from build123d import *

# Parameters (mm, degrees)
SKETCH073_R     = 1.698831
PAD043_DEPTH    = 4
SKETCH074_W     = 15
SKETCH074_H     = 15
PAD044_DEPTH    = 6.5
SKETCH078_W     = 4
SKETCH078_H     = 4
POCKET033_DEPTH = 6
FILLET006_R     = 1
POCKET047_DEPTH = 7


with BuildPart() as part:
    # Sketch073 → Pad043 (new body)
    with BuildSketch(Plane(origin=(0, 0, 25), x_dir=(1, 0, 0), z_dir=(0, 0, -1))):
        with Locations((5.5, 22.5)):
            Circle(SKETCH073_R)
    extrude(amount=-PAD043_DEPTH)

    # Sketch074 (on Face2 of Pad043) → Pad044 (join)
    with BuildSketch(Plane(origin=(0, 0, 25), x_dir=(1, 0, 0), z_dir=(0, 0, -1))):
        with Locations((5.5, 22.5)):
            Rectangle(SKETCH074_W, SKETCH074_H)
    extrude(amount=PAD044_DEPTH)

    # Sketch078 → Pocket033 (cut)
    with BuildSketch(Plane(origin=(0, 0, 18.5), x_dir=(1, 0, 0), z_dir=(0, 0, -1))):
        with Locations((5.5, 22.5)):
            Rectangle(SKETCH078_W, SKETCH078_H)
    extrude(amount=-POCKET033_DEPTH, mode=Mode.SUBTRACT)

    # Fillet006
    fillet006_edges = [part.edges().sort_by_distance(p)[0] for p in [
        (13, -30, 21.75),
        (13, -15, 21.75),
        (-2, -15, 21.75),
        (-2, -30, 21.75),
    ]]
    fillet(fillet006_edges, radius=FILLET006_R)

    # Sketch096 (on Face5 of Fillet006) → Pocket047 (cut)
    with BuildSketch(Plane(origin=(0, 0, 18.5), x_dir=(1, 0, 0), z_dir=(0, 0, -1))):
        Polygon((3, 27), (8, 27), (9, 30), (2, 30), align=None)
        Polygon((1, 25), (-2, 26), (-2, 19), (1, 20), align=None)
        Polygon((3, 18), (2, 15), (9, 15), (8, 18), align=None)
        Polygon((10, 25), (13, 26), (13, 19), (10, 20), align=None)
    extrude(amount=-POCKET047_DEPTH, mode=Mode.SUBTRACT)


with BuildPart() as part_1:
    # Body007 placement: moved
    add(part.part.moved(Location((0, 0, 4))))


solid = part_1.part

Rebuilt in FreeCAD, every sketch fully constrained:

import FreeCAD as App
import Part
import Sketcher


def edges_at(feature, points):
    """Names of the edges that pass closest to the given points."""
    edges = feature.Shape.Edges
    near = lambda p: min(range(len(edges)), key=lambda i: edges[i].distToShape(Part.Vertex(*p))[0])
    return sorted({f"Edge{near(p) + 1}" for p in points})


def add_polygon(sketch, points):
    """Adds a closed chain of lines whose ends are joined by coincident constraints."""
    first, n = sketch.GeometryCount, len(points)
    for a, b in zip(points, points[1:] + points[:1]):
        sketch.addGeometry(Part.LineSegment(App.Vector(*a, 0), App.Vector(*b, 0)), False)
    for i in range(n):
        sketch.addConstraint(Sketcher.Constraint("Coincident", first + i, 2, first + (i + 1) % n, 1))

doc = App.newDocument("Part")
body = doc.addObject("PartDesign::Body", "Body")

# Sketch on XY plane
sketch1 = body.newObject("Sketcher::SketchObject", "Sketch")
sketch1.AttachmentSupport = (doc.getObject("XY_Plane"), [""])
sketch1.MapMode = "FlatFace"
sketch1.AttachmentOffset = App.Placement(App.Vector(0, 0, 25), App.Rotation())
sketch1.addGeometry(Part.Circle(App.Vector(5.5, -22.5, 0), App.Vector(0, 0, 1), 1.7), False)
sketch1.addConstraint([
    Sketcher.Constraint("DistanceX", -1, 1, 0, 3, 5.5),
    Sketcher.Constraint("DistanceY", 0, 3, -1, 1, 22.5),
    Sketcher.Constraint("Diameter", 0, 3.397662),
])
pad1 = body.newObject("PartDesign::Pad", "Pad")
pad1.Profile = sketch1
pad1.Length = 4

# Sketch on XY plane
sketch2 = body.newObject("Sketcher::SketchObject", "Sketch001")
sketch2.AttachmentSupport = (doc.getObject("XY_Plane"), [""])
sketch2.MapMode = "FlatFace"
sketch2.AttachmentOffset = App.Placement(App.Vector(0, 0, 25), App.Rotation())
add_polygon(sketch2, [(-2, -30), (-2, -15), (13, -15), (13, -30)])  # lines 0-3
sketch2.addConstraint([
    Sketcher.Constraint("Vertical", 0),
    Sketcher.Constraint("Horizontal", 1),
    Sketcher.Constraint("Vertical", 2),
    Sketcher.Constraint("Horizontal", 3),
    Sketcher.Constraint("Equal", 3, 0),
    Sketcher.Constraint("DistanceX", 1, 1, 1, 2, 15.0),
    Sketcher.Constraint("DistanceX", 0, 2, -1, 1, 2.0),
    Sketcher.Constraint("DistanceY", 0, 2, -1, 1, 15.0),
])
pad2 = body.newObject("PartDesign::Pad", "Pad001")
pad2.Profile = sketch2
pad2.Length = 6.5
pad2.Reversed = True

# Sketch on XY plane
sketch3 = body.newObject("Sketcher::SketchObject", "Sketch002")
sketch3.AttachmentSupport = (doc.getObject("XY_Plane"), [""])
sketch3.MapMode = "FlatFace"
sketch3.AttachmentOffset = App.Placement(App.Vector(0, 0, 18.5), App.Rotation())
add_polygon(sketch3, [(3.5, -24.5), (3.5, -20.5), (7.5, -20.5), (7.5, -24.5)])  # lines 0-3
sketch3.addConstraint([
    Sketcher.Constraint("Vertical", 0),
    Sketcher.Constraint("Horizontal", 1),
    Sketcher.Constraint("Vertical", 2),
    Sketcher.Constraint("Horizontal", 3),
    Sketcher.Constraint("Equal", 3, 0),
    Sketcher.Constraint("DistanceX", 1, 1, 1, 2, 4.0),
    Sketcher.Constraint("DistanceX", -1, 1, 0, 2, 3.5),
    Sketcher.Constraint("DistanceY", 0, 2, -1, 1, 20.5),
])
pocket1 = body.newObject("PartDesign::Pocket", "Pocket")
pocket1.Profile = sketch3
pocket1.Length = 6
pocket1.Reversed = True
doc.recompute()

fillet = body.newObject("PartDesign::Fillet", "Fillet")
fillet.Base = (pocket1, edges_at(pocket1, [
    (13, -30, 21.75),
    (13, -15, 21.75),
    (-2, -15, 21.75),
    (-2, -30, 21.75),
]))
fillet.Radius = 1

# Sketch on XY plane
sketch4 = body.newObject("Sketcher::SketchObject", "Sketch003")
sketch4.AttachmentSupport = (doc.getObject("XY_Plane"), [""])
sketch4.MapMode = "FlatFace"
sketch4.AttachmentOffset = App.Placement(App.Vector(0, 0, 18.5), App.Rotation())
add_polygon(sketch4, [(3, -27), (8, -27), (9, -30), (2, -30)])  # lines 0-3
add_polygon(sketch4, [(1, -25), (-2, -26), (-2, -19), (1, -20)])  # lines 4-7
add_polygon(sketch4, [(3, -18), (2, -15), (9, -15), (8, -18)])  # lines 8-11
add_polygon(sketch4, [(13, -26), (10, -25), (10, -20), (13, -19)])  # lines 12-15
sketch4.addConstraint([
    Sketcher.Constraint("Horizontal", 0),
    Sketcher.Constraint("Horizontal", 2),
    Sketcher.Constraint("Vertical", 5),
    Sketcher.Constraint("Vertical", 7),
    Sketcher.Constraint("Horizontal", 9),
    Sketcher.Constraint("Horizontal", 11),
    Sketcher.Constraint("Vertical", 13),
    Sketcher.Constraint("Vertical", 15),
    Sketcher.Constraint("Perpendicular", 1, 4),
    Sketcher.Constraint("Perpendicular", 3, 6),
    Sketcher.Constraint("Perpendicular", 4, 8),
    Sketcher.Constraint("Perpendicular", 6, 10),
    Sketcher.Constraint("Perpendicular", 10, 12),
    Sketcher.Constraint("Perpendicular", 8, 14),
    Sketcher.Constraint("Horizontal", 7, 2, 12, 2),
    Sketcher.Constraint("Horizontal", 6, 2, 13, 2),
    Sketcher.Constraint("Horizontal", 5, 2, 14, 2),
    Sketcher.Constraint("Horizontal", 4, 2, 15, 2),
    Sketcher.Constraint("Vertical", 2, 2, 8, 2),
    Sketcher.Constraint("Vertical", 1, 2, 9, 2),
    Sketcher.Constraint("Vertical", 0, 2, 10, 2),
    Sketcher.Constraint("Equal", 9, 5),
    Sketcher.Constraint("Equal", 11, 7),
    Sketcher.Constraint("DistanceX", 0, 1, 0, 2, 5.0),
    Sketcher.Constraint("DistanceX", 2, 2, 2, 1, 7.0),
    Sketcher.Constraint("DistanceX", -1, 1, 0, 2, 8.0),
    Sketcher.Constraint("DistanceY", 0, 2, -1, 1, 27.0),
    Sketcher.Constraint("DistanceY", 1, 2, -1, 1, 30.0),
    Sketcher.Constraint("DistanceX", 4, 2, -1, 1, 2.0),
    Sketcher.Constraint("DistanceY", 4, 2, -1, 1, 26.0),
    Sketcher.Constraint("DistanceY", 8, 2, -1, 1, 15.0),
    Sketcher.Constraint("DistanceX", -1, 1, 12, 2, 10.0),
])
pocket2 = body.newObject("PartDesign::Pocket", "Pocket001")
pocket2.Profile = sketch4
pocket2.Length = 7
pocket2.Reversed = True
body2 = doc.addObject("PartDesign::Body", "Body001")
doc.recompute()

body.Placement = App.Placement(App.Vector(0, 0, 4), App.Rotation(App.Vector(0, 0, 1), 0))
boolean = body2.newObject("PartDesign::Boolean", "Boolean")
boolean.Type = "Fuse"
boolean.addObjects([body])

doc.recompute()
